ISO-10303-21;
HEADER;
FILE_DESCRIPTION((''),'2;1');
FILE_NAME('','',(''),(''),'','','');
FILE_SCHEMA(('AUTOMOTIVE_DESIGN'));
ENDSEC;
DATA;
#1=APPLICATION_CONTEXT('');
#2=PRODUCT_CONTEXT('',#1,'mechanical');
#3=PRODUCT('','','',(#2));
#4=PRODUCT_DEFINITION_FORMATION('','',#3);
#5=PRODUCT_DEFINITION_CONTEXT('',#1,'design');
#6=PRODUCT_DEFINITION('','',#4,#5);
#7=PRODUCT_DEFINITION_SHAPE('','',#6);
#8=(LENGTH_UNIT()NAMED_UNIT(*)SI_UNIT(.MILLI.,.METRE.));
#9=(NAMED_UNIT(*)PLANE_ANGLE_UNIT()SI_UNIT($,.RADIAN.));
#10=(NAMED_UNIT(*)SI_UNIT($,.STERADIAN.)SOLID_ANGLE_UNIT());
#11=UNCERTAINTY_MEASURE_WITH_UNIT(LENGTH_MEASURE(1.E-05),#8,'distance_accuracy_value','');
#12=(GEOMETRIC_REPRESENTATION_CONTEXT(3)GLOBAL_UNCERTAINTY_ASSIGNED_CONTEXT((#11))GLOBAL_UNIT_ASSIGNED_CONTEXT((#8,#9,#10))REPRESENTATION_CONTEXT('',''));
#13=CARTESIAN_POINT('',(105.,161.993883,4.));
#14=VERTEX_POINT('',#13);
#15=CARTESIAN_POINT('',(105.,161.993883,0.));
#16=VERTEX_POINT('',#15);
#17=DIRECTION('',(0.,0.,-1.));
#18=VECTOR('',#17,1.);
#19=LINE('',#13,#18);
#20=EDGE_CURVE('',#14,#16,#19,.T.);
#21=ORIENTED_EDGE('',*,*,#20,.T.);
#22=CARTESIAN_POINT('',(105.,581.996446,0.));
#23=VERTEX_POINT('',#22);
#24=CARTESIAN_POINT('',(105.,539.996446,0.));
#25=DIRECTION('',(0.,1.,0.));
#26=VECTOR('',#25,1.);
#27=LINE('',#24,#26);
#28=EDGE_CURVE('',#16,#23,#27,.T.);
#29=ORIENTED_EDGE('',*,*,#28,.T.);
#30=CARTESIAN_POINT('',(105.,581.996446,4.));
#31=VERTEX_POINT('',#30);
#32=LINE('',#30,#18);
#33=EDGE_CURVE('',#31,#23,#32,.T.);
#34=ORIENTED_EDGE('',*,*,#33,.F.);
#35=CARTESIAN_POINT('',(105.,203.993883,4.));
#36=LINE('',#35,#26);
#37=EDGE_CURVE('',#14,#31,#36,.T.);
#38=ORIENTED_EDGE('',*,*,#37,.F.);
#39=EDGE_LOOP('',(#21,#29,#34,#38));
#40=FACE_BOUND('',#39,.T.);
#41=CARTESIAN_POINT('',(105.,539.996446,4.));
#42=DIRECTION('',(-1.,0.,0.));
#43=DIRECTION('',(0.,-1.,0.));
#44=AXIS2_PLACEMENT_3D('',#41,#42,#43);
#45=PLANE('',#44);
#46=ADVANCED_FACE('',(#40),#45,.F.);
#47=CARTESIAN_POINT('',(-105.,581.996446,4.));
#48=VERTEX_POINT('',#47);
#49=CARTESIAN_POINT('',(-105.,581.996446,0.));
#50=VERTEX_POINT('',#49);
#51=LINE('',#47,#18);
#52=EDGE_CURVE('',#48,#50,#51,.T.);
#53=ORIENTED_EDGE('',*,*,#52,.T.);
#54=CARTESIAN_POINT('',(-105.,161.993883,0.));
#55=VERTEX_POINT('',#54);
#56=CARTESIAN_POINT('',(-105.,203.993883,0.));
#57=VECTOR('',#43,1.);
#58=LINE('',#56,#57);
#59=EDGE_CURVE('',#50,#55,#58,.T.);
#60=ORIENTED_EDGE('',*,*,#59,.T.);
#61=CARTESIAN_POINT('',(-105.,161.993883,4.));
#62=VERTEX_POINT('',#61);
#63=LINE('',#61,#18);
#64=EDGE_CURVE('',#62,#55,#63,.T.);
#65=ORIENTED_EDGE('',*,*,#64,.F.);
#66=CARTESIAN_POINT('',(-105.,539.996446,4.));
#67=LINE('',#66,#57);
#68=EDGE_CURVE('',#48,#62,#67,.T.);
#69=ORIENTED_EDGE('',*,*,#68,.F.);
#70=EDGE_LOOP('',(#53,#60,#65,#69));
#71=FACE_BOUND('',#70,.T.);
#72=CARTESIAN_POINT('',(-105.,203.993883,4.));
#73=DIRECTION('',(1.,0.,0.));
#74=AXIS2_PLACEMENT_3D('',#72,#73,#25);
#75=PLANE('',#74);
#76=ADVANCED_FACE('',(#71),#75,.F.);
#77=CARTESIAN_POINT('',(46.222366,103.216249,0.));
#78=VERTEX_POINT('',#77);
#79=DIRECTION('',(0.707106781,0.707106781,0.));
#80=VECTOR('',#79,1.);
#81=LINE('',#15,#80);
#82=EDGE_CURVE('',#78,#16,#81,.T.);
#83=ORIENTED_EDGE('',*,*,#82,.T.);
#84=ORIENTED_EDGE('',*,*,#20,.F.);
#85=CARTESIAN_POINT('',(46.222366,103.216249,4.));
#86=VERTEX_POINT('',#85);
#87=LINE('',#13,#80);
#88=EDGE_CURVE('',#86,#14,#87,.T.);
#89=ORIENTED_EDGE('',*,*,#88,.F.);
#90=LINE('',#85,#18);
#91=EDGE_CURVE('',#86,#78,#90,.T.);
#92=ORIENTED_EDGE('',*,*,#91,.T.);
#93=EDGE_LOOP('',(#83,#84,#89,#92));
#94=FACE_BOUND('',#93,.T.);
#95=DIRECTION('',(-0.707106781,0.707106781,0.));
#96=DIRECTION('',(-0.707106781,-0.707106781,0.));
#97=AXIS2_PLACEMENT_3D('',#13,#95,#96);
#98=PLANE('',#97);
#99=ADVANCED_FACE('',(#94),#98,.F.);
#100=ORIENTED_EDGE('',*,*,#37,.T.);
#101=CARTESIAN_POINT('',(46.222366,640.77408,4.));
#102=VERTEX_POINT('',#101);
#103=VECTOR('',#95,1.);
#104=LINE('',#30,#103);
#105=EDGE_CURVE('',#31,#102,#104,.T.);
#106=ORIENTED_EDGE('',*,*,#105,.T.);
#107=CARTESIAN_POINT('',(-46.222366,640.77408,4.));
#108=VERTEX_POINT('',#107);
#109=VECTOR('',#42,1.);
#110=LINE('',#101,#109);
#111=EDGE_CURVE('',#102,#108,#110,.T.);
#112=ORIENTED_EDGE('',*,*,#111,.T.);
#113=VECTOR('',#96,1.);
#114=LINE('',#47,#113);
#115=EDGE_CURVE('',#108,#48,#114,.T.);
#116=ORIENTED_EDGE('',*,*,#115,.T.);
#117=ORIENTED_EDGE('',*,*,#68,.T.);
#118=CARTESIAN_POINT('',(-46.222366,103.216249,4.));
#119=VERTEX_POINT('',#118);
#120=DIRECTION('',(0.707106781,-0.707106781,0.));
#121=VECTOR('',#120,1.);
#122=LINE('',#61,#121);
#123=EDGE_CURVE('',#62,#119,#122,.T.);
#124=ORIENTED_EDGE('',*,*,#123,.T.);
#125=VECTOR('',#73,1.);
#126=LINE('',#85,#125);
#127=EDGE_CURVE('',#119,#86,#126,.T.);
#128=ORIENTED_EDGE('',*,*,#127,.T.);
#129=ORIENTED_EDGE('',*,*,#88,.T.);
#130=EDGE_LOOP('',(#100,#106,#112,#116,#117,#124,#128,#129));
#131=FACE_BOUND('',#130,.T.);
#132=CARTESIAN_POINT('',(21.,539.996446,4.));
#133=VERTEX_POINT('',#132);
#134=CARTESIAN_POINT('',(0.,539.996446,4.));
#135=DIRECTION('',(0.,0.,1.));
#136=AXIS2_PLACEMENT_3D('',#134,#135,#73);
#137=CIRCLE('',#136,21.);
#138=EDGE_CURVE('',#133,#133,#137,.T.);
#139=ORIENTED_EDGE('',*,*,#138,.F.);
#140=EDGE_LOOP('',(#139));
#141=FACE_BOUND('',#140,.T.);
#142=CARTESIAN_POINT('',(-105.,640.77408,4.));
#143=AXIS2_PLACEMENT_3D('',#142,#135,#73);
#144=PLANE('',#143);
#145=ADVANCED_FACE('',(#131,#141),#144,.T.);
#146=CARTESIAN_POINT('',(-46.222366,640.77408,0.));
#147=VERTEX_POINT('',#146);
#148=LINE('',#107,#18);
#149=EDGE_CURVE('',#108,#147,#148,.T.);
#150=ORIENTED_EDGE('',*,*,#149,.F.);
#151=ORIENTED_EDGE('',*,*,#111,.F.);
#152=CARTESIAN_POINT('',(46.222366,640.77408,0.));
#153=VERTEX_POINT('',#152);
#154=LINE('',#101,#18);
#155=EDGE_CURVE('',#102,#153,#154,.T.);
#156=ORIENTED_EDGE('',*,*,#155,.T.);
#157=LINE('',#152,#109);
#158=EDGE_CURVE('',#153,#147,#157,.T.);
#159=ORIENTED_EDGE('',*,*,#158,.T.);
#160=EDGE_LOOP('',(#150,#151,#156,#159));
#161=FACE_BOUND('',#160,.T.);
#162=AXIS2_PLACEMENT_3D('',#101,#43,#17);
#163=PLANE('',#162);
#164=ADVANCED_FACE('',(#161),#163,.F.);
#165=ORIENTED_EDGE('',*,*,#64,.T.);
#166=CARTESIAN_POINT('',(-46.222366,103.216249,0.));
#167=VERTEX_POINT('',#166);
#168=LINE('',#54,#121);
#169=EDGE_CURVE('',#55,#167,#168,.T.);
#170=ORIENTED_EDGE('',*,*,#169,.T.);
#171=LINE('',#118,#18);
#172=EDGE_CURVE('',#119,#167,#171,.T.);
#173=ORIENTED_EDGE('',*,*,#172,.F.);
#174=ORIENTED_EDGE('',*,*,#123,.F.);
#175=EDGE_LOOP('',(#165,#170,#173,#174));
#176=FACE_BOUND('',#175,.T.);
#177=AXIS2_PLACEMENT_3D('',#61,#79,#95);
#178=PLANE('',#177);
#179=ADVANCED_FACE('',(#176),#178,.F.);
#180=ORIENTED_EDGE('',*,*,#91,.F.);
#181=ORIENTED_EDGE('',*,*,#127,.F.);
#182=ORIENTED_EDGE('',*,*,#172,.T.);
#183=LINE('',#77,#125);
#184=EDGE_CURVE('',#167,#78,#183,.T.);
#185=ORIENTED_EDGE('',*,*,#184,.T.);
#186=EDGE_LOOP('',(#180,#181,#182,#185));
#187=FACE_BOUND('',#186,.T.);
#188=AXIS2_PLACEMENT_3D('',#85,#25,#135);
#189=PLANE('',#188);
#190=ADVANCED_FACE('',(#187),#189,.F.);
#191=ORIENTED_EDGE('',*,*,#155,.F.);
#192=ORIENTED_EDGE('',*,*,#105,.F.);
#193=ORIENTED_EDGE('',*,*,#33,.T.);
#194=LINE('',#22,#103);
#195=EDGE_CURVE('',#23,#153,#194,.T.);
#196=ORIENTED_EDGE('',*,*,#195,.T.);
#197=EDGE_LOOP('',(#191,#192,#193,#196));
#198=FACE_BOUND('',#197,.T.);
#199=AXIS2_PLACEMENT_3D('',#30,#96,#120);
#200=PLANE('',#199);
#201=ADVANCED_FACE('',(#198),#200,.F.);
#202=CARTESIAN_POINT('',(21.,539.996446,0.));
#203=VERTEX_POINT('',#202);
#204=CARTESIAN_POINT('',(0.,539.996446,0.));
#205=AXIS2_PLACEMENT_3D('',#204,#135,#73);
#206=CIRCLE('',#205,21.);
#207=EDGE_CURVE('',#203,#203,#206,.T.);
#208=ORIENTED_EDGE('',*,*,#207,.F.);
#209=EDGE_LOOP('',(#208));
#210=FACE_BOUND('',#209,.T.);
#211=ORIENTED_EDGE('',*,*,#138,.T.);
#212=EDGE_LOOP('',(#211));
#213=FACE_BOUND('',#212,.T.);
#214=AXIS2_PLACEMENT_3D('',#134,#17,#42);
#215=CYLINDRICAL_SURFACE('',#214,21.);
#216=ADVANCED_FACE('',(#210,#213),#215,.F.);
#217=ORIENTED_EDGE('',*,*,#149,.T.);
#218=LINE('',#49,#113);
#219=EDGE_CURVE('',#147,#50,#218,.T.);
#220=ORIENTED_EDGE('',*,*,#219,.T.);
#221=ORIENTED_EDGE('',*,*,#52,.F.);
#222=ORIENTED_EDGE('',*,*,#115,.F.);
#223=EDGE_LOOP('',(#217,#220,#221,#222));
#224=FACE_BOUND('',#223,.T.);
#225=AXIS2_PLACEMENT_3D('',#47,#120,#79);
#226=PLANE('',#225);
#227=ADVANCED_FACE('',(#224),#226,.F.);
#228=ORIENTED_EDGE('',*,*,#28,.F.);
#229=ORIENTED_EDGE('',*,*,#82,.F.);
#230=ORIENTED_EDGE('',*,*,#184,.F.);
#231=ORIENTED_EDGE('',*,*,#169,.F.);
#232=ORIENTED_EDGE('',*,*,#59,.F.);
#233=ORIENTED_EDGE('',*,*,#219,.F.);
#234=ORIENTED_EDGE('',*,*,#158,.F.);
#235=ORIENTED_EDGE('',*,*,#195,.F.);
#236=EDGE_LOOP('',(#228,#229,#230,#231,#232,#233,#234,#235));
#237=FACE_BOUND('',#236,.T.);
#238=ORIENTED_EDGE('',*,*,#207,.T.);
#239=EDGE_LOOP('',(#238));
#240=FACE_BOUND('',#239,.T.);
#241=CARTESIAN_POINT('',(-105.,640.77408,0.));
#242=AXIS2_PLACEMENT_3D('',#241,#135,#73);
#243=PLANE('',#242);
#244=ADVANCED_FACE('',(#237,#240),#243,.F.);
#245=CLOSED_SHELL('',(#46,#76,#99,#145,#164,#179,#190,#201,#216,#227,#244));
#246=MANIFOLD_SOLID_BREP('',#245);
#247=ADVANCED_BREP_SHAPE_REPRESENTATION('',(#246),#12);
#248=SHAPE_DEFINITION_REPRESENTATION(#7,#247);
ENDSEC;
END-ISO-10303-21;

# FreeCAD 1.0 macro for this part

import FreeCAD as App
import Part
import Sketcher

V = App.Vector
Q = App.Units.Quantity


def add_polygon(sketch, points):
    """Adds a closed chain of lines whose ends are joined by coincident constraints."""
    first, n = sketch.GeometryCount, len(points)
    for a, b in zip(points, points[1:] + points[:1]):
        sketch.addGeometry(Part.LineSegment(App.Vector(*a, 0), App.Vector(*b, 0)), False)
    for i in range(n):
        sketch.addConstraint(Sketcher.Constraint("Coincident", first + i, 2, first + (i + 1) % n, 1))

doc = App.newDocument("Part")
params = doc.addObject("Spreadsheet::Sheet", "Params")
for row, (alias, value) in enumerate([
    ("sketch1_diameter", "42 mm"),
    ("pad1_length", "4 mm"),
], start=1):
    params.set(f"A{row}", alias)
    params.set(f"B{row}", "=" + value)
    params.setAlias(f"B{row}", alias)

body = doc.addObject("PartDesign::Body", "Body")

sketch1 = doc.addObject("Sketcher::SketchObject", "Sketch")
body.addObject(sketch1)
sketch1.AttachmentSupport = (doc.XY_Plane, [""])
sketch1.MapMode = "FlatFace"
add_polygon(sketch1, [(-105, 162), (-46, 103), (46, 103), (105, 162), (105, 582), (46, 641), (-46, 641), (-105, 582)])
sketch1.addGeometry(Part.Circle(V(0, 540, 0), V(0, 0, 1), 21), False)
sketch1.addConstraint([
    Sketcher.Constraint("Horizontal", 1),
    Sketcher.Constraint("Vertical", 3),
    Sketcher.Constraint("Horizontal", 5),
    Sketcher.Constraint("Vertical", 7),
    Sketcher.Constraint("Symmetric", 3, 2, 6, 2, -2),
    Sketcher.Constraint("PointOnObject", 8, 3, -2),
    Sketcher.Constraint("Perpendicular", 0, 2),
    Sketcher.Constraint("Perpendicular", 2, 4),
    Sketcher.Constraint("Perpendicular", 4, 6),
    Sketcher.Constraint("Horizontal", 2, 2, 7, 2),
    Sketcher.Constraint("Vertical", 1, 2, 4, 2),
    Sketcher.Constraint("Vertical", 0, 2, 5, 2),
    Sketcher.Constraint("Diameter", 8, Q("42 mm")),
    Sketcher.Constraint("DistanceX", -1, 1, 2, 2, Q("105 mm")),
    Sketcher.Constraint("DistanceY", 8, 3, 3, 2, Q("42 mm")),
    Sketcher.Constraint("DistanceX", 1, 1, 1, 2, Q("92.444733 mm")),
    Sketcher.Constraint("DistanceY", 3, 1, 3, 2, Q("420.002563 mm")),
    Sketcher.Constraint("DistanceY", -1, 1, 0, 2, Q("103.216249 mm")),
])
sketch1.setExpression("Constraints[20]", "Params.sketch1_diameter")
pad1 = doc.addObject("PartDesign::Pad", "Pad")
body.addObject(pad1)
pad1.Profile = sketch1
pad1.setExpression("Length", "Params.pad1_length")

doc.recompute()
